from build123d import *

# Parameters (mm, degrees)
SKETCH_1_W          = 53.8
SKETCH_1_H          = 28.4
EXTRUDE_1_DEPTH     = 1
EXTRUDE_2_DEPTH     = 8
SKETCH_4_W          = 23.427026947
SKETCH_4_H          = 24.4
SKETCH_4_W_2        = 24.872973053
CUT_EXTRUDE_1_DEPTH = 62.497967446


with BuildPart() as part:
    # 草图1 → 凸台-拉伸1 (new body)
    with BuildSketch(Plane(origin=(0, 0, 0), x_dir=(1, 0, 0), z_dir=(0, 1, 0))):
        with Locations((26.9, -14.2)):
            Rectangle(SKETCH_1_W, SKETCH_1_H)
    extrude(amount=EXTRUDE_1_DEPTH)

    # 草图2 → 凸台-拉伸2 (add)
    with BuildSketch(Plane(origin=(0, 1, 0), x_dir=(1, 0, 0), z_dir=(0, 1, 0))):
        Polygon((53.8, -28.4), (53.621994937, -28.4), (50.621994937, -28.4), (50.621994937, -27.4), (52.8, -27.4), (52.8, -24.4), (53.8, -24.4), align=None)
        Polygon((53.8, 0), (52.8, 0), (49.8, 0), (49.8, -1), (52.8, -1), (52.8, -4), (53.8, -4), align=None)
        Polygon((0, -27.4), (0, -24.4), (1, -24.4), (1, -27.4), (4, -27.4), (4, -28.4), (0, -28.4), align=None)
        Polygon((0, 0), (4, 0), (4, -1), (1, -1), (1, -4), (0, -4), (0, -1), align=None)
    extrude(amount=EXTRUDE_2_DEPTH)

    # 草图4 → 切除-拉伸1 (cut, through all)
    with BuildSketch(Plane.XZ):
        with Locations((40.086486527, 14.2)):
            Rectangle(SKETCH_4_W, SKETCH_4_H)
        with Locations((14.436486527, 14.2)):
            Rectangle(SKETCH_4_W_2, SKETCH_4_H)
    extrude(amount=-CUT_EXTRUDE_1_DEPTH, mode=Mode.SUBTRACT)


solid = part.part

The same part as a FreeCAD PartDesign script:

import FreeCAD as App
import Part
import Sketcher
from FreeCAD import Vector


def add_polygon(sketch, points):
    """Adds a closed chain of lines whose ends are joined by coincident constraints."""
    first, n = sketch.GeometryCount, len(points)
    for a, b in zip(points, points[1:] + points[:1]):
        sketch.addGeometry(Part.LineSegment(App.Vector(*a, 0), App.Vector(*b, 0)), False)
    for i in range(n):
        sketch.addConstraint(Sketcher.Constraint("Coincident", first + i, 2, first + (i + 1) % n, 1))

doc = App.newDocument("Part")
params = doc.addObject("Spreadsheet::Sheet", "Params")
for row, (alias, value) in enumerate([
    ("sketch1_width", "53.8 mm"),
    ("sketch1_height", "28.4 mm"),
    ("pad1_length", "1 mm"),
    ("sketch2_width", "1 mm"),
    ("sketch2_width2", "4 mm"),
    ("pad2_length", "8 mm"),
    ("sketch3_height", "24.4 mm"),
], start=1):
    params.set(f"A{row}", alias)
    params.set(f"B{row}", "=" + value)
    params.setAlias(f"B{row}", alias)

body = doc.addObject("PartDesign::Body", "Body")

sketch1 = body.newObject("Sketcher::SketchObject", "Sketch")
sketch1.AttachmentSupport = (doc.getObject("XZ_Plane"), [""])
sketch1.MapMode = "FlatFace"
add_polygon(sketch1, [(0, 0), (0, 28.4), (53.8, 28.4), (53.8, 0)])
sketch1.addConstraint([
    Sketcher.Constraint("Vertical", 0),
    Sketcher.Constraint("Horizontal", 1),
    Sketcher.Constraint("Vertical", 2),
    Sketcher.Constraint("Horizontal", 3),
    Sketcher.Constraint("Coincident", 3, 2, -1, 1),
    Sketcher.Constraint("DistanceX", 1, 1, 1, 2, 53.8),
    Sketcher.Constraint("DistanceY", 0, 1, 0, 2, 28.4),
])
sketch1.setExpression("Constraints[9]", "Params.sketch1_width")
sketch1.setExpression("Constraints[10]", "Params.sketch1_height")
pad1 = body.newObject("PartDesign::Pad", "Pad")
pad1.Profile = sketch1
pad1.setExpression("Length", "Params.pad1_length")
pad1.Reversed = True

sketch2 = body.newObject("Sketcher::SketchObject", "Sketch001")
sketch2.AttachmentSupport = (doc.getObject("XZ_Plane"), [""])
sketch2.MapMode = "FlatFace"
sketch2.AttachmentOffset = App.Placement(Vector(0, 0, -1), App.Rotation())
add_polygon(sketch2, [(50.621995, 28.4), (53.8, 28.4), (53.8, 24.4), (52.8, 24.4), (52.8, 27.4), (50.621995, 27.4)])
add_polygon(sketch2, [(53.8, 0), (49.8, 0), (49.8, 1), (52.8, 1), (52.8, 4), (53.8, 4)])
add_polygon(sketch2, [(0, 24.4), (0, 28.4), (4, 28.4), (4, 27.4), (1, 27.4), (1, 24.4)])
add_polygon(sketch2, [(4, 0), (0, 0), (0, 4), (1, 4), (1, 1), (4, 1)])
sketch2.addConstraint([
    Sketcher.Constraint("Horizontal", 0),
    Sketcher.Constraint("Vertical", 1),
    Sketcher.Constraint("Horizontal", 2),
    Sketcher.Constraint("Vertical", 3),
    Sketcher.Constraint("Horizontal", 4),
    Sketcher.Constraint("Vertical", 5),
    Sketcher.Constraint("Horizontal", 6),
    Sketcher.Constraint("Vertical", 7),
    Sketcher.Constraint("Horizontal", 8),
    Sketcher.Constraint("Vertical", 9),
    Sketcher.Constraint("Horizontal", 10),
    Sketcher.Constraint("Vertical", 11),
    Sketcher.Constraint("Vertical", 12),
    Sketcher.Constraint("Horizontal", 13),
    Sketcher.Constraint("Vertical", 14),
    Sketcher.Constraint("Horizontal", 15),
    Sketcher.Constraint("Vertical", 16),
    Sketcher.Constraint("Horizontal", 17),
    Sketcher.Constraint("Horizontal", 18),
    Sketcher.Constraint("Vertical", 19),
    Sketcher.Constraint("Horizontal", 20),
    Sketcher.Constraint("Vertical", 21),
    Sketcher.Constraint("Horizontal", 22),
    Sketcher.Constraint("Vertical", 23),
    Sketcher.Constraint("Coincident", 18, 2, -1, 1),
    Sketcher.Constraint("PointOnObject", 6, 2, -1),
    Sketcher.Constraint("PointOnObject", 12, 2, -2),
    Sketcher.Constraint("Horizontal", 5, 2, 12, 2),
    Sketcher.Constraint("Horizontal", 4, 2, 14, 2),
    Sketcher.Constraint("Horizontal", 2, 2, 16, 2),
    Sketcher.Constraint("Horizontal", 10, 2, 19, 2),
    Sketcher.Constraint("Horizontal", 8, 2, 21, 2),
    Sketcher.Constraint("Vertical", 3, 2, 8, 2),
    Sketcher.Constraint("Vertical", 1, 2, 10, 2),
    Sketcher.Constraint("Vertical", 16, 2, 20, 2),
    Sketcher.Constraint("Vertical", 14, 2, 22, 2),
    Sketcher.Constraint("Equal", 6, 13),
    Sketcher.Constraint("Equal", 8, 15),
    Sketcher.Constraint("Equal", 18, 1),
    Sketcher.Constraint("Equal", 22, 3),
    Sketcher.Constraint("Equal", 5, 7),
    Sketcher.Constraint("Equal", 3, 9),
    Sketcher.Constraint("DistanceX", 2, 2, 2, 1, 1.0),
    Sketcher.Constraint("DistanceX", 6, 2, 6, 1, 4.0),
    Sketcher.Constraint("DistanceX", -1, 1, 0, 2, 53.8),
    Sketcher.Constraint("DistanceY", -1, 1, 0, 2, 28.4),
    Sketcher.Constraint("DistanceX", 0, 1, 0, 2, 3.178005),
])
sketch2.setExpression("Constraints[66]", "Params.sketch2_width")
sketch2.setExpression("Constraints[67]", "Params.sketch2_width2")
pad2 = body.newObject("PartDesign::Pad", "Pad001")
pad2.Profile = sketch2
pad2.setExpression("Length", "Params.pad2_length")
pad2.Reversed = True

sketch3 = body.newObject("Sketcher::SketchObject", "Sketch002")
sketch3.AttachmentSupport = (doc.getObject("XZ_Plane"), [""])
sketch3.MapMode = "FlatFace"
add_polygon(sketch3, [(28.372973, 26.4), (28.372973, 2), (51.8, 2), (51.8, 26.4)])
add_polygon(sketch3, [(2, 26.4), (2, 2), (26.872973, 2), (26.872973, 26.4)])
sketch3.addConstraint([
    Sketcher.Constraint("Vertical", 0),
    Sketcher.Constraint("Horizontal", 1),
    Sketcher.Constraint("Vertical", 2),
    Sketcher.Constraint("Horizontal", 3),
    Sketcher.Constraint("Vertical", 4),
    Sketcher.Constraint("Horizontal", 5),
    Sketcher.Constraint("Vertical", 6),
    Sketcher.Constraint("Horizontal", 7),
    Sketcher.Constraint("Horizontal", 1, 2, 4, 2),
    Sketcher.Constraint("Horizontal", 3, 2, 6, 2),
    Sketcher.Constraint("DistanceY", 0, 2, 0, 1, 24.4),
    Sketcher.Constraint("DistanceY", -1, 1, 0, 2, 2.0),
    Sketcher.Constraint("DistanceX", -1, 1, 4, 2, 2.0),
    Sketcher.Constraint("DistanceX", -1, 1, 1, 2, 51.8),
    Sketcher.Constraint("DistanceX", 5, 2, 0, 2, 1.5),
    Sketcher.Constraint("DistanceX", 1, 1, 1, 2, 23.427027),
])
sketch3.setExpression("Constraints[18]", "Params.sketch3_height")
pocket1 = body.newObject("PartDesign::Pocket", "Pocket")
pocket1.Profile = sketch3
pocket1.Type = "ThroughAll"

doc.recompute()
